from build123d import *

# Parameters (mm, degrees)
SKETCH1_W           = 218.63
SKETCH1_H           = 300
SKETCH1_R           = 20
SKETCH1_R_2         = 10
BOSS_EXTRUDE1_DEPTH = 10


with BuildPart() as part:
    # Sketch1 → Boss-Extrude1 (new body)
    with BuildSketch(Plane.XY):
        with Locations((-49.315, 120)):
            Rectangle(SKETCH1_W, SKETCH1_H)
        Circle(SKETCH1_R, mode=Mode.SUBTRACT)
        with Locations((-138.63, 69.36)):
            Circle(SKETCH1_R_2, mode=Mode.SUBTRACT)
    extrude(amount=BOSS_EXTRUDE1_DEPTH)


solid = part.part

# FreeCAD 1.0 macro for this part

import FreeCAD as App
import Part
import Sketcher

V = App.Vector
Q = App.Units.Quantity


def add_polygon(sketch, points):
    """Adds a closed chain of lines whose ends are joined by coincident constraints."""
    first, n = sketch.GeometryCount, len(points)
    for a, b in zip(points, points[1:] + points[:1]):
        sketch.addGeometry(Part.LineSegment(App.Vector(*a, 0), App.Vector(*b, 0)), False)
    for i in range(n):
        sketch.addConstraint(Sketcher.Constraint("Coincident", first + i, 2, first + (i + 1) % n, 1))

doc = App.newDocument("Part")
body = doc.addObject("PartDesign::Body", "Body")

sketch1 = doc.addObject("Sketcher::SketchObject", "Sketch")
body.addObject(sketch1)
sketch1.AttachmentSupport = (doc.XY_Plane, [""])
sketch1.MapMode = "FlatFace"
add_polygon(sketch1, [(-159, 270), (-159, -30), (60, -30), (60, 270)])
sketch1.addGeometry(Part.Circle(V(0, 0, 0), V(0, 0, 1), 20), False)
sketch1.addGeometry(Part.Circle(V(-139, 69, 0), V(0, 0, 1), 10), False)
sketch1.addConstraint([
    Sketcher.Constraint("Vertical", 0),
    Sketcher.Constraint("Horizontal", 1),
    Sketcher.Constraint("Vertical", 2),
    Sketcher.Constraint("Horizontal", 3),
    Sketcher.Constraint("Coincident", 4, 3, -1, 1),
    Sketcher.Constraint("Diameter", 4, Q("40 mm")),
    Sketcher.Constraint("Diameter", 5, Q("20 mm")),
    Sketcher.Constraint("DistanceY", 0, 2, 0, 1, Q("300 mm")),
    Sketcher.Constraint("DistanceY", 0, 2, -1, 1, Q("30 mm")),
    Sketcher.Constraint("DistanceX", -1, 1, 1, 2, Q("60 mm")),
    Sketcher.Constraint("DistanceX", 0, 2, 5, 3, Q("20 mm")),
    Sketcher.Constraint("DistanceX", 1, 1, 1, 2, Q("218.63 mm")),
    Sketcher.Constraint("DistanceY", -1, 1, 5, 3, Q("69.36 mm")),
])
pad1 = doc.addObject("PartDesign::Pad", "Pad")
body.addObject(pad1)
pad1.Profile = sketch1
pad1.Length = 10

doc.recompute()
